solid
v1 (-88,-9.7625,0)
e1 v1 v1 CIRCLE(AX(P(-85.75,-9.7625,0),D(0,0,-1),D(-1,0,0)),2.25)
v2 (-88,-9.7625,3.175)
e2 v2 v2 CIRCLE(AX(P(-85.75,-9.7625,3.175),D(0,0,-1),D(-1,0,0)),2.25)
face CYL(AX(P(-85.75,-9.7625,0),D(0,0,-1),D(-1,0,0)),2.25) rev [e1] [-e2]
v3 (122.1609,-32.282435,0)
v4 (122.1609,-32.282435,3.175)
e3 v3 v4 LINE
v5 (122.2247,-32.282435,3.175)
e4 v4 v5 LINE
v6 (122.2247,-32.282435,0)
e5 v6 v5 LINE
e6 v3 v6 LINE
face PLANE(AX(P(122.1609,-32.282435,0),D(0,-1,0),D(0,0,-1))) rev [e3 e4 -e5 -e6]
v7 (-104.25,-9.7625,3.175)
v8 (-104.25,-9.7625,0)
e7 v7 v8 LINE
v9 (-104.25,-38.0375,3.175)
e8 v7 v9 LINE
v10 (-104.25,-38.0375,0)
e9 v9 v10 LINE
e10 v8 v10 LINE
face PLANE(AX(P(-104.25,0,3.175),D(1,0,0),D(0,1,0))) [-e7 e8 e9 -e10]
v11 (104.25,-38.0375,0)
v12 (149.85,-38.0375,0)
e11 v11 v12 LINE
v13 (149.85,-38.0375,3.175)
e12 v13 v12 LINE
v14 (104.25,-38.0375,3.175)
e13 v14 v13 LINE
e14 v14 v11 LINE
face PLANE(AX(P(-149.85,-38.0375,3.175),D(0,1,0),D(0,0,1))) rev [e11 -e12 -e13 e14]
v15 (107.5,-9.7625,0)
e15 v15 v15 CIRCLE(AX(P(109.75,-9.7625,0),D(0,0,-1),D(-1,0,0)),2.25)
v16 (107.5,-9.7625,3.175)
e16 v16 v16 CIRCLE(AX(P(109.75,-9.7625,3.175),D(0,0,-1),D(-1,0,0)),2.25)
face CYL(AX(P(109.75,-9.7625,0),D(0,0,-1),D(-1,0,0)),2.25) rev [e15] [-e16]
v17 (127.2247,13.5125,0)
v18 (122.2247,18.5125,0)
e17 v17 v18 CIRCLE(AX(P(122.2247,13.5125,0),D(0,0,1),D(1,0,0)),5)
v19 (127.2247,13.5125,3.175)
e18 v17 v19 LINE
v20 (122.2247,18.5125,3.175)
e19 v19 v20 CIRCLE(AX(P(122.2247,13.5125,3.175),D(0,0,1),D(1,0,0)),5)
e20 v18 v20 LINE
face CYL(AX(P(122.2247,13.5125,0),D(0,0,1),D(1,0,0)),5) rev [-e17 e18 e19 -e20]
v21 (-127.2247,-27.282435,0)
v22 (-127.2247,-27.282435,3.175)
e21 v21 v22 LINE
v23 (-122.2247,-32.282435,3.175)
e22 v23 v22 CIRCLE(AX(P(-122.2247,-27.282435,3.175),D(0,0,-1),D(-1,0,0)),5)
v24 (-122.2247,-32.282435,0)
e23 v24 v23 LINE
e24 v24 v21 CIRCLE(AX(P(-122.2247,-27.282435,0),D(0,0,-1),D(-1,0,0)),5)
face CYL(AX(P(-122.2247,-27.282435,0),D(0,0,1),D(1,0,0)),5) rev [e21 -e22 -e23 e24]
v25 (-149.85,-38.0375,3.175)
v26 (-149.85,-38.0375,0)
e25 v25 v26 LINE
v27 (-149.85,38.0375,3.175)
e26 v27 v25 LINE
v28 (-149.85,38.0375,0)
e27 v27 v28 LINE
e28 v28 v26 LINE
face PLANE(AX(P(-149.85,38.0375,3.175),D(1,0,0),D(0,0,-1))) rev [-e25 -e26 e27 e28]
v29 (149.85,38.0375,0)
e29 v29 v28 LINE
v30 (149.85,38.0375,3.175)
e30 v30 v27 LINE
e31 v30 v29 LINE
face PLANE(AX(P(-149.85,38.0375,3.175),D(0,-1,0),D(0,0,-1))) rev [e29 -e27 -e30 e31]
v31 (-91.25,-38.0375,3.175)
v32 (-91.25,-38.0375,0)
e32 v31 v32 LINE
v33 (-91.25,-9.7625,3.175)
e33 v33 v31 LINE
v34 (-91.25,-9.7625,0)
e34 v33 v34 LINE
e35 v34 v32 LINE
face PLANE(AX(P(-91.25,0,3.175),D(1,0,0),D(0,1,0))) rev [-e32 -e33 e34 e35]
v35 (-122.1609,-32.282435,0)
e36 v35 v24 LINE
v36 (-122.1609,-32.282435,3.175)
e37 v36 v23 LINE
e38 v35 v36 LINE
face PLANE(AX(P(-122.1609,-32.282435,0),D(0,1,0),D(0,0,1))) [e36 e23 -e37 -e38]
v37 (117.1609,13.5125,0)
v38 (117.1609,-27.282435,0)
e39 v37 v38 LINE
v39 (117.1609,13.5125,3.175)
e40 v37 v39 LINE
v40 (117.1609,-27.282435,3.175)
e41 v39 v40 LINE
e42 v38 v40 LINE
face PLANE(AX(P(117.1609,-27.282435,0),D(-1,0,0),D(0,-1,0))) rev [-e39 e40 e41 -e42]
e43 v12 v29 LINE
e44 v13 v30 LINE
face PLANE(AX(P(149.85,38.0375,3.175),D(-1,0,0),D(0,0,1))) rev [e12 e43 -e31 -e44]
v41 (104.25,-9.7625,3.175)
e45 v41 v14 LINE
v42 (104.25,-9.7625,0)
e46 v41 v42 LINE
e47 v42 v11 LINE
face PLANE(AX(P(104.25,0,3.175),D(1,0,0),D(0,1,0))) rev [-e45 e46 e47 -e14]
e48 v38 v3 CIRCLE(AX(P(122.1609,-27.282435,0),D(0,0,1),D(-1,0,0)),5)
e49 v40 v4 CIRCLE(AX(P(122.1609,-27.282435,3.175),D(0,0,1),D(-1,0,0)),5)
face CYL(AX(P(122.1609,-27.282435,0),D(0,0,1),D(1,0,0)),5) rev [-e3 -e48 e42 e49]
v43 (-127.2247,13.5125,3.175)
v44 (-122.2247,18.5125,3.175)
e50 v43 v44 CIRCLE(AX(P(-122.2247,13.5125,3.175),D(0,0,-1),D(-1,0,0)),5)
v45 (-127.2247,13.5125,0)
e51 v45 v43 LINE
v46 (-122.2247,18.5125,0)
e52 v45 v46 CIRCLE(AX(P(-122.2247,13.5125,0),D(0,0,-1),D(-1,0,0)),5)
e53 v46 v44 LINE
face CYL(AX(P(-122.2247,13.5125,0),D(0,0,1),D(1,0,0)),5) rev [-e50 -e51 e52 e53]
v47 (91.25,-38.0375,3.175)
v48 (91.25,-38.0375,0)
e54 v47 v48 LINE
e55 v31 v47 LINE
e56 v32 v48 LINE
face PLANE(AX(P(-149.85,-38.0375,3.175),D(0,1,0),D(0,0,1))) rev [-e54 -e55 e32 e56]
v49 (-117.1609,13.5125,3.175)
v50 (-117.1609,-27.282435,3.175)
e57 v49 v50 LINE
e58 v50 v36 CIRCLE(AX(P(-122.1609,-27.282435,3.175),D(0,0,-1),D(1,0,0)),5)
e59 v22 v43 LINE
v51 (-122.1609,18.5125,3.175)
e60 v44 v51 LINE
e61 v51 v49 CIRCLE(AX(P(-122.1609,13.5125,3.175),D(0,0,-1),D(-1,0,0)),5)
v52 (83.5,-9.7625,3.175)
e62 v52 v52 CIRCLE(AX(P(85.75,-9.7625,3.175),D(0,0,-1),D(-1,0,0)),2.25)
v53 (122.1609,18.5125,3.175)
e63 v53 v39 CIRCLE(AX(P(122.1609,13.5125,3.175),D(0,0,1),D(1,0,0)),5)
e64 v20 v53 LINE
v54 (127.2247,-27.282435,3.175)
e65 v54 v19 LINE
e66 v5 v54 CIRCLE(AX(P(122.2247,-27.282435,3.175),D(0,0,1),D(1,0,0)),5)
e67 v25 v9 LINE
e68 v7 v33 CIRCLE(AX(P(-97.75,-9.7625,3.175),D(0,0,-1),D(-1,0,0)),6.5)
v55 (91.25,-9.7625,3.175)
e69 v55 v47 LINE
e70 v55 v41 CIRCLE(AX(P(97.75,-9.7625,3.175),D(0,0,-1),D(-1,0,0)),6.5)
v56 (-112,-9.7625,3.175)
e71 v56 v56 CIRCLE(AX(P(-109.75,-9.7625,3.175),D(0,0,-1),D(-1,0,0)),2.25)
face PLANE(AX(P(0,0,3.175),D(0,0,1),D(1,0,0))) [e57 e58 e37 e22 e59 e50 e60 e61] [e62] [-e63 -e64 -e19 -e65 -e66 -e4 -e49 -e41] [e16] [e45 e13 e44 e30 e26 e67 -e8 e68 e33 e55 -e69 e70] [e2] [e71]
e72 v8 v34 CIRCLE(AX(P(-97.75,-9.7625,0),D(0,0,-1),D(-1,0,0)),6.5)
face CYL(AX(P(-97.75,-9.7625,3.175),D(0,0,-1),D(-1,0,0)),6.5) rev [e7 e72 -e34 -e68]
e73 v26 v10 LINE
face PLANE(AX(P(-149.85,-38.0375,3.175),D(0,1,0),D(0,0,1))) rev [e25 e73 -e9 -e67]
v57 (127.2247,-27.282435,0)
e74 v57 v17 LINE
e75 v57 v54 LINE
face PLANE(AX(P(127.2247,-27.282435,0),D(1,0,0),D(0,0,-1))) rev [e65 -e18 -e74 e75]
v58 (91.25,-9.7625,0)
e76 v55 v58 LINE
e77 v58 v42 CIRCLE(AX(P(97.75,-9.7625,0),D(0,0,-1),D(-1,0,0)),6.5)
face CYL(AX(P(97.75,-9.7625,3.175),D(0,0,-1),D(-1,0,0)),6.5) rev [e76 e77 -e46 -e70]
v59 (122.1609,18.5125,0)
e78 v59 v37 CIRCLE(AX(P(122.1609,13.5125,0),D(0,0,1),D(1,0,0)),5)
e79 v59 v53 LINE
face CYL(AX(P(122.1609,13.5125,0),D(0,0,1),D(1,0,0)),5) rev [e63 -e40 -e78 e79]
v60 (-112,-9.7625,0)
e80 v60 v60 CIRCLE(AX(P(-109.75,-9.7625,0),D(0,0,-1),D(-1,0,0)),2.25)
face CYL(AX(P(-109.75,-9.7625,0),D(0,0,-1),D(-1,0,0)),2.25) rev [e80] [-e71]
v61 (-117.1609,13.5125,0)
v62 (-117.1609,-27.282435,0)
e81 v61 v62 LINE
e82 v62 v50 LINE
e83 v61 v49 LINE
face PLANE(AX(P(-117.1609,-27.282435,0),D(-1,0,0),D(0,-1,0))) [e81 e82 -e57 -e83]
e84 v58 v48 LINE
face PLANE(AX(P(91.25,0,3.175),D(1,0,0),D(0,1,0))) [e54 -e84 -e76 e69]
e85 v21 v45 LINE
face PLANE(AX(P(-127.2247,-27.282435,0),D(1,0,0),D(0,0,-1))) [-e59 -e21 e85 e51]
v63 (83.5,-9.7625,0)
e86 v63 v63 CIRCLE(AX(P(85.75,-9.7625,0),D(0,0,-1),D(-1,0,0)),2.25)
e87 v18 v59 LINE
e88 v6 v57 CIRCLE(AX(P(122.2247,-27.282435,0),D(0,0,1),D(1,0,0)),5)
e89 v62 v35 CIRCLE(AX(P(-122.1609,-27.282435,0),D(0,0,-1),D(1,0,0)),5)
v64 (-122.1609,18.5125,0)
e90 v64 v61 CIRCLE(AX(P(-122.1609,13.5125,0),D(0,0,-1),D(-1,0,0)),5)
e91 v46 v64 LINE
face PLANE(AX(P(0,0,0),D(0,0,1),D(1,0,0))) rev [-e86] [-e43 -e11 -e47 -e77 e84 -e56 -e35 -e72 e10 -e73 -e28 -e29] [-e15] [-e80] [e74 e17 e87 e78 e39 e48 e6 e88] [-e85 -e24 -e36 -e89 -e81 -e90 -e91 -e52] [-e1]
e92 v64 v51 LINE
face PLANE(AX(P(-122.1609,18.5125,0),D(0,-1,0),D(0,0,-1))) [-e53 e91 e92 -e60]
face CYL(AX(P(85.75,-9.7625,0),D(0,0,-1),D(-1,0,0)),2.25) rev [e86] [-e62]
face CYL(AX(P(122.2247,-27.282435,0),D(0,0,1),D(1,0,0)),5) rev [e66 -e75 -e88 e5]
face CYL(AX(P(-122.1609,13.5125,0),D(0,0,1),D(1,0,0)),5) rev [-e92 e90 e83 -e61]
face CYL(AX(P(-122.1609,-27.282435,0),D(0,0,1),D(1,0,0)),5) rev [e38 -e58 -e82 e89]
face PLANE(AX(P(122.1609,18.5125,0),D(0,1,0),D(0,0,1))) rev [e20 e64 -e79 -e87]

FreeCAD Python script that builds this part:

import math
import FreeCAD as App
import Part
import Sketcher


def add_polygon(sketch, points):
    """Adds a closed chain of lines whose ends are joined by coincident constraints."""
    first, n = sketch.GeometryCount, len(points)
    for a, b in zip(points, points[1:] + points[:1]):
        sketch.addGeometry(Part.LineSegment(App.Vector(*a, 0), App.Vector(*b, 0)), False)
    for i in range(n):
        sketch.addConstraint(Sketcher.Constraint("Coincident", first + i, 2, first + (i + 1) % n, 1))

doc = App.newDocument("Part")
body = doc.addObject("PartDesign::Body", "Body")

# Sketch on XY plane
sketch1 = body.newObject("Sketcher::SketchObject", "Sketch")
sketch1.AttachmentSupport = (doc.getObject("XY_Plane"), [""])
sketch1.MapMode = "FlatFace"
add_polygon(sketch1, [(-150, 38), (-150, -38), (150, -38), (150, 38)])  # lines 0-3
sketch1.addConstraint([
    Sketcher.Constraint("Vertical", 0),
    Sketcher.Constraint("Horizontal", 1),
    Sketcher.Constraint("Vertical", 2),
    Sketcher.Constraint("Horizontal", 3),
    Sketcher.Constraint("Symmetric", 0, 2, 2, 2, -1, 1),
    Sketcher.Constraint("DistanceX", 1, 1, 1, 2, 299.7),
    Sketcher.Constraint("DistanceY", 0, 2, 0, 1, 76.075),
])
pad1 = body.newObject("PartDesign::Pad", "Pad")
pad1.Profile = sketch1
pad1.Length = 3.175

# Sketch on XY plane
sketch2 = body.newObject("Sketcher::SketchObject", "Sketch001")
sketch2.AttachmentSupport = (doc.getObject("XY_Plane"), [""])
sketch2.MapMode = "FlatFace"
sketch2.AttachmentOffset = App.Placement(App.Vector(0, 0, 3.175), App.Rotation())
sketch2.addGeometry([
    Part.LineSegment(App.Vector(122.22, 18.51, 0), App.Vector(122.16, 18.51, 0)),  # 0
    Part.ArcOfCircle(Part.Circle(App.Vector(122.16, 13.51, 0), App.Vector(0, 0, 1), 5), math.radians(90), math.radians(180)),  # 1
    Part.LineSegment(App.Vector(117.16, 13.51, 0), App.Vector(117.16, -27.28, 0)),  # 2
    Part.ArcOfCircle(Part.Circle(App.Vector(122.16, -27.28, 0), App.Vector(0, 0, 1), 5), math.radians(180), math.radians(270)),  # 3
    Part.LineSegment(App.Vector(122.16, -32.28, 0), App.Vector(122.22, -32.28, 0)),  # 4
    Part.ArcOfCircle(Part.Circle(App.Vector(122.22, -27.28, 0), App.Vector(0, 0, 1), 5), math.radians(-90), math.radians(0)),  # 5
    Part.LineSegment(App.Vector(127.22, -27.28, 0), App.Vector(127.22, 13.51, 0)),  # 6
    Part.ArcOfCircle(Part.Circle(App.Vector(122.22, 13.51, 0), App.Vector(0, 0, 1), 5), math.radians(0), math.radians(90)),  # 7
], False)
sketch2.addConstraint([
    Sketcher.Constraint("Tangent", 0, 2, 1, 1),
    Sketcher.Constraint("Tangent", 1, 2, 2, 1),
    Sketcher.Constraint("Tangent", 2, 2, 3, 1),
    Sketcher.Constraint("Tangent", 3, 2, 4, 1),
    Sketcher.Constraint("Tangent", 4, 2, 5, 1),
    Sketcher.Constraint("Tangent", 5, 2, 6, 1),
    Sketcher.Constraint("Tangent", 6, 2, 7, 1),
    Sketcher.Constraint("Tangent", 7, 2, 0, 1),
    Sketcher.Constraint("Horizontal", 0),
    Sketcher.Constraint("Vertical", 2),
    Sketcher.Constraint("Horizontal", 4),
    Sketcher.Constraint("Vertical", 6),
    Sketcher.Constraint("Equal", 1, 3),
    Sketcher.Constraint("Equal", 3, 5),
    Sketcher.Constraint("Equal", 5, 7),
    Sketcher.Constraint("Radius", 1, 5.0),
    Sketcher.Constraint("DistanceX", 0, 2, 0, 1, 0.0638),
    Sketcher.Constraint("DistanceX", -1, 1, 1, 3, 122.1609),
    Sketcher.Constraint("DistanceY", -1, 1, 1, 3, 13.5125),
    Sketcher.Constraint("DistanceY", 2, 2, 2, 1, 40.794935),
])
pocket1 = body.newObject("PartDesign::Pocket", "Pocket")
pocket1.Profile = sketch2
pocket1.Type = "ThroughAll"
doc.recompute()

mirrored = body.newObject("PartDesign::Mirrored", "Mirrored")
mirrored.Originals = [pocket1]
mirrored.MirrorPlane = (doc.getObject("YZ_Plane"), [""])
body.Tip = mirrored

# Sketch on XY plane
sketch3 = body.newObject("Sketcher::SketchObject", "Sketch002")
sketch3.AttachmentSupport = (doc.getObject("XY_Plane"), [""])
sketch3.MapMode = "FlatFace"
sketch3.addGeometry([
    Part.ArcOfCircle(Part.Circle(App.Vector(98, -10, 0), App.Vector(0, 0, 1), 6), math.radians(0), math.radians(180)),  # 0
    Part.LineSegment(App.Vector(104, -10, 0), App.Vector(104, -38, 0)),  # 1
    Part.LineSegment(App.Vector(104, -38, 0), App.Vector(91, -38, 0)),  # 2
    Part.LineSegment(App.Vector(91, -38, 0), App.Vector(91, -10, 0)),  # 3
    Part.ArcOfCircle(Part.Circle(App.Vector(-98, -10, 0), App.Vector(0, 0, 1), 6), math.radians(0), math.radians(180)),  # 4
    Part.LineSegment(App.Vector(-91, -10, 0), App.Vector(-91, -38, 0)),  # 5
    Part.LineSegment(App.Vector(-91, -38, 0), App.Vector(-104, -38, 0)),  # 6
    Part.LineSegment(App.Vector(-104, -38, 0), App.Vector(-104, -10, 0)),  # 7
], False)
sketch3.addConstraint([
    Sketcher.Constraint("Tangent", 0, 1, 1, 1),
    Sketcher.Constraint("Coincident", 1, 2, 2, 1),
    Sketcher.Constraint("Coincident", 2, 2, 3, 1),
    Sketcher.Constraint("Tangent", 3, 2, 0, 2),
    Sketcher.Constraint("Tangent", 4, 1, 5, 1),
    Sketcher.Constraint("Coincident", 5, 2, 6, 1),
    Sketcher.Constraint("Coincident", 6, 2, 7, 1),
    Sketcher.Constraint("Tangent", 7, 2, 4, 2),
    Sketcher.Constraint("Vertical", 1),
    Sketcher.Constraint("Horizontal", 2),
    Sketcher.Constraint("Vertical", 3),
    Sketcher.Constraint("Vertical", 5),
    Sketcher.Constraint("Horizontal", 6),
    Sketcher.Constraint("Vertical", 7),
    Sketcher.Constraint("Equal", 0, 4),
    Sketcher.Constraint("Symmetric", 0, 3, 4, 3, -2),
    Sketcher.Constraint("Horizontal", 2, 2, 5, 2),
    Sketcher.Constraint("Radius", 0, 6.5),
    Sketcher.Constraint("DistanceX", 4, 3, 0, 1, 202.0),
    Sketcher.Constraint("DistanceY", 1, 2, 1, 1, 28.275),
    Sketcher.Constraint("DistanceY", 0, 3, -1, 1, 9.7625),
])
pocket2 = body.newObject("PartDesign::Pocket", "Pocket001")
pocket2.Profile = sketch3
pocket2.Type = "ThroughAll"
pocket2.Reversed = True

# Sketch on XY plane
sketch4 = body.newObject("Sketcher::SketchObject", "Sketch003")
sketch4.AttachmentSupport = (doc.getObject("XY_Plane"), [""])
sketch4.MapMode = "FlatFace"
sketch4.addGeometry([
    Part.Circle(App.Vector(85.8, -9.8, 0), App.Vector(0, 0, 1), 2.2),
    Part.Circle(App.Vector(109.8, -9.8, 0), App.Vector(0, 0, 1), 2.2),
    Part.Circle(App.Vector(-109.8, -9.8, 0), App.Vector(0, 0, 1), 2.2),
    Part.Circle(App.Vector(-85.8, -9.8, 0), App.Vector(0, 0, 1), 2.2),
], False)
sketch4.addConstraint([
    Sketcher.Constraint("Equal", 0, 1),
    Sketcher.Constraint("Equal", 1, 2),
    Sketcher.Constraint("Equal", 2, 3),
    Sketcher.Constraint("Symmetric", 1, 3, 2, 3, -2),
    Sketcher.Constraint("Symmetric", 0, 3, 3, 3, -2),
    Sketcher.Constraint("Horizontal", 0, 3, 1, 3),
    Sketcher.Constraint("Diameter", 0, 4.5),
    Sketcher.Constraint("DistanceX", 0, 3, 1, 3, 24.0),
    Sketcher.Constraint("DistanceX", 2, 3, 0, 3, 195.5),
    Sketcher.Constraint("DistanceY", 0, 3, -1, 1, 9.7625),
])
doc.recompute()
hole = body.newObject("PartDesign::Hole", "Hole")
hole.Profile = sketch4
hole.ThreadType = "None"
hole.Diameter = 4.5
hole.DepthType = "ThroughAll"
hole.Reversed = True

doc.recompute()
